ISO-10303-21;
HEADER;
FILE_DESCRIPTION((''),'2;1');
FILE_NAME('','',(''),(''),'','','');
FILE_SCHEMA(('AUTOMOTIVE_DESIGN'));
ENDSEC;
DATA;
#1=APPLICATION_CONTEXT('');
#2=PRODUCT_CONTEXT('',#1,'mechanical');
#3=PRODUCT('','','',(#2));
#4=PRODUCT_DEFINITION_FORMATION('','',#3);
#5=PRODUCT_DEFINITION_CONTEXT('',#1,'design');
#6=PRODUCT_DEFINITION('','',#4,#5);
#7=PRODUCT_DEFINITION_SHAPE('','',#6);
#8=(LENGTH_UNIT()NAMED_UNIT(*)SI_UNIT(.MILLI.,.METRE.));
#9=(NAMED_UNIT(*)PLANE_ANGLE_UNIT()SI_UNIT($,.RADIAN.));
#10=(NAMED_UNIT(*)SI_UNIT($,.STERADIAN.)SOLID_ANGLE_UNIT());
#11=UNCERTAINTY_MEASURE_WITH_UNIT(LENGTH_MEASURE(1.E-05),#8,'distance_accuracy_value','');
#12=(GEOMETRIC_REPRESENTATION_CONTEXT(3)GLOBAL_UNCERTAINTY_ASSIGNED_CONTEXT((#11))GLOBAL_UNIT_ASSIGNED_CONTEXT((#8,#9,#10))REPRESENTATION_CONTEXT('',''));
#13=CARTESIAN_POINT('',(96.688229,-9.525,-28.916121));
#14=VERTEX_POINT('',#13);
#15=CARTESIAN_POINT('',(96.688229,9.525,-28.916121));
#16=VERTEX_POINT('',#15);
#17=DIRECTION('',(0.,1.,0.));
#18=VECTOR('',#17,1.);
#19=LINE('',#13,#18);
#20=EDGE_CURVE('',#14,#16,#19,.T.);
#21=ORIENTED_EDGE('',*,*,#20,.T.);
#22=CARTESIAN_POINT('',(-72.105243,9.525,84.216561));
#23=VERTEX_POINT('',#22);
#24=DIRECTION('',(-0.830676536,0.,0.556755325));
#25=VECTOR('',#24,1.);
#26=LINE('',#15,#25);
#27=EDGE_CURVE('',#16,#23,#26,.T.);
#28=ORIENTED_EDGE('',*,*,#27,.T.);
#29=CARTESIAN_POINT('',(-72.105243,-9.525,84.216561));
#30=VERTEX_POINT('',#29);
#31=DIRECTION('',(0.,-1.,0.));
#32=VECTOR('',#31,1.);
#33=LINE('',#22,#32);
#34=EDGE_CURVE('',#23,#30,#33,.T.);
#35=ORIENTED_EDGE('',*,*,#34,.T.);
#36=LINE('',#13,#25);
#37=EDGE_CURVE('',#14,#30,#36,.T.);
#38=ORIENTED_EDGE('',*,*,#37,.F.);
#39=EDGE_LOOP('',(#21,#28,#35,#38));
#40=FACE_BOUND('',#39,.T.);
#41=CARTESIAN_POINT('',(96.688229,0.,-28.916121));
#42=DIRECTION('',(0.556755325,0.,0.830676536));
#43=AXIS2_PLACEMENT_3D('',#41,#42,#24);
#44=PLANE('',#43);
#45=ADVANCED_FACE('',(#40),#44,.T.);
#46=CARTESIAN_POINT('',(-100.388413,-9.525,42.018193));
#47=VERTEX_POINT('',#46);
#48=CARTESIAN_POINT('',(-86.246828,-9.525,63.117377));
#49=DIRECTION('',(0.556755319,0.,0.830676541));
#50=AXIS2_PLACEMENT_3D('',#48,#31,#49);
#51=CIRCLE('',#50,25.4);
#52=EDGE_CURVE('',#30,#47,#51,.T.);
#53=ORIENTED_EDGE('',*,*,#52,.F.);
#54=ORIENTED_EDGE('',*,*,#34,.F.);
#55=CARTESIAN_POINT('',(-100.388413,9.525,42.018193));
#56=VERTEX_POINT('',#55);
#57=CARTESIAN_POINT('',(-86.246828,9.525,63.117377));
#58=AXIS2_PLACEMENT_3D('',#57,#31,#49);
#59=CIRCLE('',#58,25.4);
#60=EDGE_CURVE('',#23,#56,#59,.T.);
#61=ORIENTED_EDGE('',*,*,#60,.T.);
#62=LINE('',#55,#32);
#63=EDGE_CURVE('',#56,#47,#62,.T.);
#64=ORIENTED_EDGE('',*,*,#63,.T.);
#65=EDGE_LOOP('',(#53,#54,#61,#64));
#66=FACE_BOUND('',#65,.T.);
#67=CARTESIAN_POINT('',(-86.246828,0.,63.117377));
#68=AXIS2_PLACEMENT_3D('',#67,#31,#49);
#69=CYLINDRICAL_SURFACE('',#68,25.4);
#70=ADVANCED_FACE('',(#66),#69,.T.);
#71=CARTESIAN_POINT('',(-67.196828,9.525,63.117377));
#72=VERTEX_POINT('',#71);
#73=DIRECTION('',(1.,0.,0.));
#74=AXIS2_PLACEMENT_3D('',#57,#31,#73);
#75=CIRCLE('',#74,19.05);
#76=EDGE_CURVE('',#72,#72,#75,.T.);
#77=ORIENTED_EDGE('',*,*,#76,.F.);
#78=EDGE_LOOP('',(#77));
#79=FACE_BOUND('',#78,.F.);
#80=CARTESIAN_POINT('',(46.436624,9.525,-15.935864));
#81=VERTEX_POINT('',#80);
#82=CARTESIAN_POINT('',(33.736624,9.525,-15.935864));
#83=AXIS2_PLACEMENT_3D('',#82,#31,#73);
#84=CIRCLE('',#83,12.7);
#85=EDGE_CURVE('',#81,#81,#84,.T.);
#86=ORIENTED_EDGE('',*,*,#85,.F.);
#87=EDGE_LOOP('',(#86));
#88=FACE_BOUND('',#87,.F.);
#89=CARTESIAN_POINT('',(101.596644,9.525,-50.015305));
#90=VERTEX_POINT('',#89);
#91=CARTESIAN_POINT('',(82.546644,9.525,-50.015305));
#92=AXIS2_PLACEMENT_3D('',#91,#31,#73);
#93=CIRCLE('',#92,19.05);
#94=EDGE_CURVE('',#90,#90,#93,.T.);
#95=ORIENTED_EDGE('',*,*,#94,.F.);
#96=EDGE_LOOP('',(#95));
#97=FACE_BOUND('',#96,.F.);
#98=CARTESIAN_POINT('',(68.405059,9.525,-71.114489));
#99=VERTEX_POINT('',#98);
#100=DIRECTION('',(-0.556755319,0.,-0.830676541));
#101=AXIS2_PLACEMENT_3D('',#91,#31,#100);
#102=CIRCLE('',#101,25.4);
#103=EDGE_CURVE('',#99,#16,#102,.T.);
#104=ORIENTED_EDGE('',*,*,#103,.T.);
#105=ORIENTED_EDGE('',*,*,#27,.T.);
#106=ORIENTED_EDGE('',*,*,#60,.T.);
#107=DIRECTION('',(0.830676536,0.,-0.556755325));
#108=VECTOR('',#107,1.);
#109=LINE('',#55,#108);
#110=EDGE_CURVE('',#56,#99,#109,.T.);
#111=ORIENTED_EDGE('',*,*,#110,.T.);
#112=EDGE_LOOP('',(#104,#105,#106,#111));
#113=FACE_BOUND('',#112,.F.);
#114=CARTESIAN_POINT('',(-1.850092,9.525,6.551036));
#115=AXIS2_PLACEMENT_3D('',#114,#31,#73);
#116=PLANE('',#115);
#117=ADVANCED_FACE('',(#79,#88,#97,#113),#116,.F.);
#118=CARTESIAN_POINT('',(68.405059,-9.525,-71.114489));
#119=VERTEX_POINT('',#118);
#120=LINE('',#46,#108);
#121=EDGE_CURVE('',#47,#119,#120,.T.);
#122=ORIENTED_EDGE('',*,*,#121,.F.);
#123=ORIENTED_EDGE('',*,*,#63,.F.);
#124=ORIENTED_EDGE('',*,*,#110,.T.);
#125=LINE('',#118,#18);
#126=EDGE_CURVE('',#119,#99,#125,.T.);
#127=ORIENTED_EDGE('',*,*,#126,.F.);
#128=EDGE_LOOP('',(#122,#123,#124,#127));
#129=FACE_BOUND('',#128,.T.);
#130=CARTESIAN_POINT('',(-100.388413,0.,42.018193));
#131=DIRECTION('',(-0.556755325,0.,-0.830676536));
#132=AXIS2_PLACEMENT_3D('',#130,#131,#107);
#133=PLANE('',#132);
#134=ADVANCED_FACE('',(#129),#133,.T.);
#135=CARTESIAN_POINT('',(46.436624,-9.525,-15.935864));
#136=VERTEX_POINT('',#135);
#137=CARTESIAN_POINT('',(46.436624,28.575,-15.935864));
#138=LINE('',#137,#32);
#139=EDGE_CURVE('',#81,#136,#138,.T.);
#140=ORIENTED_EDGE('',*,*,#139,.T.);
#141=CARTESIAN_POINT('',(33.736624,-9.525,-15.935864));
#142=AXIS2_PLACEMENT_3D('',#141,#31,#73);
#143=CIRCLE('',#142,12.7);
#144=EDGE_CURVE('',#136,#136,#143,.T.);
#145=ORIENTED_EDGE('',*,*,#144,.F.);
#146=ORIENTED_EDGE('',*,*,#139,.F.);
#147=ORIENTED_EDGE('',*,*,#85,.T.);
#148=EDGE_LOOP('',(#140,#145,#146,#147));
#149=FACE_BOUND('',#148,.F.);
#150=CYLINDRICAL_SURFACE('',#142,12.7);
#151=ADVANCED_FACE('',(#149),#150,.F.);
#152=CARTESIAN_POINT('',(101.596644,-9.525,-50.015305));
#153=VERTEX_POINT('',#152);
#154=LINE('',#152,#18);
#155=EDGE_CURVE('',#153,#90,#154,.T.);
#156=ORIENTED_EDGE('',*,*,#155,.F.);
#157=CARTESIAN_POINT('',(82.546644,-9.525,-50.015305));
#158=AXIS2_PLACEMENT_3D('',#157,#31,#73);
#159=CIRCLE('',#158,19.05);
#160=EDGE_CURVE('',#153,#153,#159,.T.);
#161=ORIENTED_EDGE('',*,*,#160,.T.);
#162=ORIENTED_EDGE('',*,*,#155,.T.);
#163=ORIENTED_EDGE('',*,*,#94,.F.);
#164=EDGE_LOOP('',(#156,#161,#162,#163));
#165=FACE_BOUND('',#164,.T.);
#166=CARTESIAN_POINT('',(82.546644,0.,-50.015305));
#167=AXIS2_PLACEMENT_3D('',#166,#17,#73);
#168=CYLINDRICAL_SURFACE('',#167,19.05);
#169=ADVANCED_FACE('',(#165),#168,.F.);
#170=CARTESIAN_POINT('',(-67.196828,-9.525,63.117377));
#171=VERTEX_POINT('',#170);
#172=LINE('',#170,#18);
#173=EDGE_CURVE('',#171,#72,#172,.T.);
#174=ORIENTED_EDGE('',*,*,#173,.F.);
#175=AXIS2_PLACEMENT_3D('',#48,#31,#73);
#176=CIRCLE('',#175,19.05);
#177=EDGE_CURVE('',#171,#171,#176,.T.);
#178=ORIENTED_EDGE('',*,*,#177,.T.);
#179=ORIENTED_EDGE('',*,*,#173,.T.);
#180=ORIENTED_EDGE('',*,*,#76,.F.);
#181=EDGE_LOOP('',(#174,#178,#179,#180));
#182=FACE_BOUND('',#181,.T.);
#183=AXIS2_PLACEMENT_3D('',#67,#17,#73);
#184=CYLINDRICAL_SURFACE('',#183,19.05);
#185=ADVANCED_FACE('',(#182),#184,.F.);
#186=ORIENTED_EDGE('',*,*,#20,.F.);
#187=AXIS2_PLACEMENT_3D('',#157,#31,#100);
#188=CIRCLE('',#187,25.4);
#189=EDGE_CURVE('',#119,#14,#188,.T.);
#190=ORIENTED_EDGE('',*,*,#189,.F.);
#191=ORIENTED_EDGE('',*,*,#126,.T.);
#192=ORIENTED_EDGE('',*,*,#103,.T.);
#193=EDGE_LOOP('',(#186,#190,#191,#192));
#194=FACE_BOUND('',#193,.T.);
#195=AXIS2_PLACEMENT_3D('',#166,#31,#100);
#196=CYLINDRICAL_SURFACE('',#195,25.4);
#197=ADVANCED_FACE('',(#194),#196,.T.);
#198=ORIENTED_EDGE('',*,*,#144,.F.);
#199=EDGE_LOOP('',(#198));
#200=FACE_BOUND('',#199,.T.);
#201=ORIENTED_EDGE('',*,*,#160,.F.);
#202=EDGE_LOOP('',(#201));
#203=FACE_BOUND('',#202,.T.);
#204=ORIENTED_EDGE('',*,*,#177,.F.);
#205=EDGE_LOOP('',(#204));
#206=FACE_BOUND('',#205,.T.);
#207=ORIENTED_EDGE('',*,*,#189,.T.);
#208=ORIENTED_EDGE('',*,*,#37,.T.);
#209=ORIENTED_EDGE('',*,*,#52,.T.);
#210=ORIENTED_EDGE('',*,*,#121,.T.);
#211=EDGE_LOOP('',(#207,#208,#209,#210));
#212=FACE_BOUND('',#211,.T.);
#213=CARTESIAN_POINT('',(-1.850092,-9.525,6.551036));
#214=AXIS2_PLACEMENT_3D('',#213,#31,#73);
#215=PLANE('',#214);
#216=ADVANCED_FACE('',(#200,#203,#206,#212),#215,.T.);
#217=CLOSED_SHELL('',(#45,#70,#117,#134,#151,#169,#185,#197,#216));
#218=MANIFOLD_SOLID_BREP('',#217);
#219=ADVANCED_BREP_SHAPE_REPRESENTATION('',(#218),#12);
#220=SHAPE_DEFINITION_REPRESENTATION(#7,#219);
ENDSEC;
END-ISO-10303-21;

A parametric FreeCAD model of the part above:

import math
import FreeCAD as App
import Part
import Sketcher

V = App.Vector
Q = App.Units.Quantity

doc = App.newDocument("Part")
body = doc.addObject("PartDesign::Body", "Body")

# Sketch on XZ plane
sketch1 = doc.addObject("Sketcher::SketchObject", "Sketch")
body.addObject(sketch1)
sketch1.AttachmentSupport = (doc.XZ_Plane, [""])
sketch1.MapMode = "FlatFace"
sketch1.addGeometry(Part.LineSegment(V(96.688229, -28.916121, 0), V(-72.105243, 84.216561, 0)), False)
sketch1.addGeometry(Part.ArcOfCircle(Part.Circle(V(-86.246828, 63.117377, 0), V(0, 0, 1), 25.4), math.radians(56.168298), math.radians(236.168298)), False)
sketch1.addGeometry(Part.LineSegment(V(-100.388413, 42.018193, 0), V(68.405059, -71.114489, 0)), False)
sketch1.addGeometry(Part.ArcOfCircle(Part.Circle(V(82.546644, -50.015305, 0), V(0, 0, 1), 25.4), math.radians(-123.831702), math.radians(56.168298)), False)
sketch1.addGeometry(Part.Circle(V(82.546644, -50.015305, 0), V(0, 0, 1), 19.05), False)
sketch1.addGeometry(Part.Circle(V(-86.246828, 63.117377, 0), V(0, 0, 1), 19.05), False)
sketch1.addConstraint(Sketcher.Constraint("Tangent", 0, 2, 1, 1))
sketch1.addConstraint(Sketcher.Constraint("Tangent", 1, 2, 2, 1))
sketch1.addConstraint(Sketcher.Constraint("Tangent", 2, 2, 3, 1))
sketch1.addConstraint(Sketcher.Constraint("Tangent", 3, 2, 0, 1))
sketch1.addConstraint(Sketcher.Constraint("Coincident", 4, 3, 3, 3))
sketch1.addConstraint(Sketcher.Constraint("Coincident", 5, 3, 1, 3))
sketch1.addConstraint(Sketcher.Constraint("Equal", 1, 3))
sketch1.addConstraint(Sketcher.Constraint("Equal", 4, 5))
sketch1.addConstraint(Sketcher.Constraint("Radius", 1, Q("1 in")))
sketch1.addConstraint(Sketcher.Constraint("Diameter", 4, Q("1.5 in")))
sketch1.addConstraint(Sketcher.Constraint("Distance", 0, Q("8 in")))
sketch1.addConstraint(Sketcher.Constraint("DistanceY", 3, 3, 1, 2, Q("92.033498 mm")))
sketch1.addConstraint(Sketcher.Constraint("DistanceY", -1, 1, 0, 2, Q("84.216561 mm")))
sketch1.addConstraint(Sketcher.Constraint("DistanceX", -1, 1, 2, 2, Q("68.405059 mm")))
pad1 = doc.addObject("PartDesign::Pad", "Pad")
body.addObject(pad1)
pad1.Profile = sketch1
pad1.Length = Q("0.75 in")
pad1.Midplane = True

# Sketch on XZ plane
sketch2 = doc.addObject("Sketcher::SketchObject", "Sketch001")
body.addObject(sketch2)
sketch2.AttachmentSupport = (doc.XZ_Plane, [""])
sketch2.MapMode = "FlatFace"
sketch2.AttachmentOffset = App.Placement(V(0, 0, 0.375 * 25.4), App.Rotation())
sketch2.addGeometry(Part.Circle(V(33.736624, -15.935864, 0), V(0, 0, 1), 12.7), False)
sketch2.addConstraint(Sketcher.Constraint("Diameter", 0, Q("1 in")))
sketch2.addConstraint(Sketcher.Constraint("DistanceX", -1, 1, 0, 3, Q("33.736624 mm")))
sketch2.addConstraint(Sketcher.Constraint("DistanceY", 0, 3, -1, 1, Q("15.935864 mm")))
pocket1 = doc.addObject("PartDesign::Pocket", "Pocket")
body.addObject(pocket1)
pocket1.Profile = sketch2
pocket1.Length = Q("3 in")
pocket1.Midplane = True

doc.recompute()
